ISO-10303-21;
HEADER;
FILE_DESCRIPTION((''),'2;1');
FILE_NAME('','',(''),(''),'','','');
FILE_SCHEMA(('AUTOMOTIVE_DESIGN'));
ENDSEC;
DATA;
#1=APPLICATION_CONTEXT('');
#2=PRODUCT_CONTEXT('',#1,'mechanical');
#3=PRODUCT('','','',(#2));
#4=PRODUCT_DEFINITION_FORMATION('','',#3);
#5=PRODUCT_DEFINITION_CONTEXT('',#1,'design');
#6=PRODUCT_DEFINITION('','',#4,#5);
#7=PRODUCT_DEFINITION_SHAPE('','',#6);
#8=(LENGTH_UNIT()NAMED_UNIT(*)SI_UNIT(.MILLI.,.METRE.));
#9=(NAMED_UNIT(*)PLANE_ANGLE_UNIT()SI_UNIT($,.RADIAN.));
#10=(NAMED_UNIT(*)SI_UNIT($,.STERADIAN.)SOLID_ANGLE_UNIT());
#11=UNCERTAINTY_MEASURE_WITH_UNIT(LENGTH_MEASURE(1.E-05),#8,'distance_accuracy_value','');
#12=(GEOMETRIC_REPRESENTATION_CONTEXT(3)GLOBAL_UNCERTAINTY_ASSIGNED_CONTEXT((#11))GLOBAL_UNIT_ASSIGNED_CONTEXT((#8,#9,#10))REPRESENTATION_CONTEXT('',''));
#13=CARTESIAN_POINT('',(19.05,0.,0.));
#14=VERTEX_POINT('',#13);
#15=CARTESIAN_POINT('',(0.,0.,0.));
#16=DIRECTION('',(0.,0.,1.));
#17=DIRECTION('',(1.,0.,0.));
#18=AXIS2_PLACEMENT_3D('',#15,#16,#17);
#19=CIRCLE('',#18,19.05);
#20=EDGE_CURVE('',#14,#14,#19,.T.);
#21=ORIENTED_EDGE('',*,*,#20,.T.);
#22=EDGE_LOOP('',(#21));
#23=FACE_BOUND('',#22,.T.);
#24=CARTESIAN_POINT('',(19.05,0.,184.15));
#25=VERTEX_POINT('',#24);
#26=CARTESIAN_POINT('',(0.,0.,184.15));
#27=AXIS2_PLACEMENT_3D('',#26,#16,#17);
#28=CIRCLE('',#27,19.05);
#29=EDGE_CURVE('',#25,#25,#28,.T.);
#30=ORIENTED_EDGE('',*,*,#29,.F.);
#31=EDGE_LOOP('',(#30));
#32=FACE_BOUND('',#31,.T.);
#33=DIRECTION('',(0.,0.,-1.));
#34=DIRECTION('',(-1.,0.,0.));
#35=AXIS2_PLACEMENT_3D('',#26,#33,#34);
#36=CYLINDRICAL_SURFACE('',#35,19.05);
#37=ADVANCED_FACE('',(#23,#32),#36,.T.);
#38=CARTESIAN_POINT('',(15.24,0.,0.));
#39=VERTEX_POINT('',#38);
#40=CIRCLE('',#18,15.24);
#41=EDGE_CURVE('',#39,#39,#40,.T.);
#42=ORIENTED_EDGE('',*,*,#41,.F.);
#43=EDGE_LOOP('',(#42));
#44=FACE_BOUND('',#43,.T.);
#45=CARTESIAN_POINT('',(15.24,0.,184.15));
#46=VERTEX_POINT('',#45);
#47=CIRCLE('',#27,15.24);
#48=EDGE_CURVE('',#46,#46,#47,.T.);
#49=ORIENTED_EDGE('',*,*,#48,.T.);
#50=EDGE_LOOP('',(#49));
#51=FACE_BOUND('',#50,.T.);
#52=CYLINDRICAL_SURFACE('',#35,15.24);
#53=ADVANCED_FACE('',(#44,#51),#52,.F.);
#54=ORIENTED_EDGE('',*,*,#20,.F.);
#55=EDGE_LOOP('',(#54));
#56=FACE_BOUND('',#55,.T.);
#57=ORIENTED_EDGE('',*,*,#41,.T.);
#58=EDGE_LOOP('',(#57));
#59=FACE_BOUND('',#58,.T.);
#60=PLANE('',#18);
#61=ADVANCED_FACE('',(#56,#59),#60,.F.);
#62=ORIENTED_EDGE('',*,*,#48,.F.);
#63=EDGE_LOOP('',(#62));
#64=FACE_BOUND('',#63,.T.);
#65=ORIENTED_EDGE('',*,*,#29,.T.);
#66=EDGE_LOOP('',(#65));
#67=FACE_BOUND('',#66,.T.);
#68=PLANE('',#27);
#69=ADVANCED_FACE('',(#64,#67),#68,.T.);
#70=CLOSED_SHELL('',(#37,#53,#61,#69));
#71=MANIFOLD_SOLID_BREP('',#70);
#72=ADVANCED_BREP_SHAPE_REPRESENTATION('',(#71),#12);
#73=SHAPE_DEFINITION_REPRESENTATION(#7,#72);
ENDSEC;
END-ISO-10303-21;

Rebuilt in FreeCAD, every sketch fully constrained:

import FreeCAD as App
import Part
import Sketcher
from FreeCAD import Vector
Q = App.Units.Quantity

doc = App.newDocument("Part")
body = doc.addObject("PartDesign::Body", "Body")

# Sketch on XY plane
sketch1 = body.newObject("Sketcher::SketchObject", "Sketch")
sketch1.AttachmentSupport = (doc.getObject("XY_Plane"), [""])
sketch1.MapMode = "FlatFace"
sketch1.addGeometry(Part.Circle(Vector(0, 0, 0), Vector(0, 0, 1), 19), False)
sketch1.addGeometry(Part.Circle(Vector(0, 0, 0), Vector(0, 0, 1), 15), False)
sketch1.addConstraint(Sketcher.Constraint("Coincident", 0, 3, -1, 1))
sketch1.addConstraint(Sketcher.Constraint("Coincident", 1, 3, -1, 1))
sketch1.addConstraint(Sketcher.Constraint("Diameter", 0, Q("1.5 in")))
sketch1.addConstraint(Sketcher.Constraint("Diameter", 1, Q("1.2 in")))
pad1 = body.newObject("PartDesign::Pad", "Pad")
pad1.Profile = sketch1
pad1.Length = Q("7.25 in")

doc.recompute()
